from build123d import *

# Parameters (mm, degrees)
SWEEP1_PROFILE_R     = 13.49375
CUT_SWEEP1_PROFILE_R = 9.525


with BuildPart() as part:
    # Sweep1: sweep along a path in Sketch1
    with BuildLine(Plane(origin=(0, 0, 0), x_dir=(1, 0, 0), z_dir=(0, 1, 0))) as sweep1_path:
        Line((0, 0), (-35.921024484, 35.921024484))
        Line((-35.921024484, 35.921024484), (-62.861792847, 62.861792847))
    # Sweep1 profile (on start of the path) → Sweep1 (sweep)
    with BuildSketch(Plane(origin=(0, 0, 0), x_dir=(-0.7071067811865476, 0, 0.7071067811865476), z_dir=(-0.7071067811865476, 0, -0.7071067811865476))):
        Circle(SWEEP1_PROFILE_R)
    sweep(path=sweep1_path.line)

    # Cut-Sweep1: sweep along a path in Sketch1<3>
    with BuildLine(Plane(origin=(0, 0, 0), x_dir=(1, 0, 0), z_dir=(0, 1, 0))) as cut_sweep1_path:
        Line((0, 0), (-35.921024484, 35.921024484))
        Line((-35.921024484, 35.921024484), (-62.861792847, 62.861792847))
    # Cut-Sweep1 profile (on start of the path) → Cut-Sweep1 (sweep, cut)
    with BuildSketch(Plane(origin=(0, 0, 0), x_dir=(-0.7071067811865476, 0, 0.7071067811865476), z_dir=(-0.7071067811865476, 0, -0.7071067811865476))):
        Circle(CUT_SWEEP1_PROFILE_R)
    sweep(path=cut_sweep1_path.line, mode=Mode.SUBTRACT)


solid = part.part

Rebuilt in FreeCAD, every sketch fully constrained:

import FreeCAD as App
import Part
import Sketcher
from FreeCAD import Vector
Q = App.Units.Quantity

doc = App.newDocument("Part")
body = doc.addObject("PartDesign::Body", "Body")

sketch1 = body.newObject("Sketcher::SketchObject", "Sketch")
sketch1.Placement = App.Placement(Vector(0, 0, 0), App.Rotation(Vector(-0.707106781, 0, 0.707106781), Vector(0, 0.999999999, 0), Vector(-0.707106781, 0, -0.707106781), "ZXY"))
sketch1.addGeometry(Part.Circle(Vector(0, 0, 0), Vector(0, 0, 1), 13), False)
sketch1.addConstraint([
    Sketcher.Constraint("Coincident", 0, 3, -1, 1),
    Sketcher.Constraint("Diameter", 0, Q("1.0625 in")),
])

sketch2 = body.newObject("Sketcher::SketchObject", "Sketch001")
sketch2.Placement = App.Placement(Vector(0, 0, 0), App.Rotation(Vector(-0.707106781, 0, -0.707106781), Vector(0, 0.999999999, 0), Vector(0.707106781, 0, -0.707106781), "ZXY"))
sketch2.addGeometry(Part.LineSegment(Vector(0, 0, 0), Vector(89, 0, 0)), False)
sketch2.addConstraint([
    Sketcher.Constraint("Horizontal", 0),
    Sketcher.Constraint("Coincident", 0, 1, -1, 1),
    Sketcher.Constraint("DistanceX", 0, 1, 0, 2, Q("3.5 in")),
])
doc.recompute()

additivepipe = body.newObject("PartDesign::AdditivePipe", "AdditivePipe")
additivepipe.Profile = sketch1
additivepipe.Spine = (sketch2, ["Edge1"])

sketch3 = body.newObject("Sketcher::SketchObject", "Sketch002")
sketch3.Placement = App.Placement(Vector(0, 0, 0), App.Rotation(Vector(-0.707106781, 0, 0.707106781), Vector(0, 0.999999999, 0), Vector(-0.707106781, 0, -0.707106781), "ZXY"))
sketch3.addGeometry(Part.Circle(Vector(0, 0, 0), Vector(0, 0, 1), 10), False)
sketch3.addConstraint([
    Sketcher.Constraint("Coincident", 0, 3, -1, 1),
    Sketcher.Constraint("Diameter", 0, Q("0.75 in")),
])

sketch4 = body.newObject("Sketcher::SketchObject", "Sketch003")
sketch4.Placement = App.Placement(Vector(0, 0, 0), App.Rotation(Vector(-0.707106781, 0, -0.707106781), Vector(0, 0.999999999, 0), Vector(0.707106781, 0, -0.707106781), "ZXY"))
sketch4.addGeometry(Part.LineSegment(Vector(0, 0, 0), Vector(89, 0, 0)), False)
sketch4.addConstraint([
    Sketcher.Constraint("Horizontal", 0),
    Sketcher.Constraint("Coincident", 0, 1, -1, 1),
    Sketcher.Constraint("DistanceX", 0, 1, 0, 2, Q("3.5 in")),
])
doc.recompute()

subtractivepipe = body.newObject("PartDesign::SubtractivePipe", "SubtractivePipe")
subtractivepipe.Profile = sketch3
subtractivepipe.Spine = (sketch4, ["Edge1"])

doc.recompute()
